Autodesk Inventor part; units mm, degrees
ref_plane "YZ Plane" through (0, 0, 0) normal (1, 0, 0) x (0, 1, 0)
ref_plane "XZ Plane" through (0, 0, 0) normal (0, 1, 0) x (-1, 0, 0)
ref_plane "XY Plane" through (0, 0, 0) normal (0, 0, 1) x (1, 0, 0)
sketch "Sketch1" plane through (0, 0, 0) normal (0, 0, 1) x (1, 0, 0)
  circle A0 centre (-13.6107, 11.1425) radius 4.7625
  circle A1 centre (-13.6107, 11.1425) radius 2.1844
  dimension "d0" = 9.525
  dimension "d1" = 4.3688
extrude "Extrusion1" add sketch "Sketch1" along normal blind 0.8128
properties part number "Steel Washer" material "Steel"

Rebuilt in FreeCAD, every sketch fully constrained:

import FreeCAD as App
import Part
import Sketcher
Q = App.Units.Quantity

doc = App.newDocument("Part")
body = doc.addObject("PartDesign::Body", "Body")

sketch1 = body.newObject("Sketcher::SketchObject", "Sketch")
sketch1.AttachmentSupport = (doc.getObject("XY_Plane"), [""])
sketch1.MapMode = "FlatFace"
sketch1.addGeometry([
    Part.Circle(App.Vector(-13.6107, 11.1425, 0), App.Vector(0, 0, 1), 4.7625),
    Part.Circle(App.Vector(-13.6107, 11.1425, 0), App.Vector(0, 0, 1), 2.1844),
], False)
sketch1.addConstraint([
    Sketcher.Constraint("Coincident", 1, 3, 0, 3),
    Sketcher.Constraint("Diameter", 0, Q("0.375 in")),
    Sketcher.Constraint("Diameter", 1, Q("0.172 in")),
    Sketcher.Constraint("DistanceX", 0, 3, -1, 1, 13.6107),
    Sketcher.Constraint("DistanceY", -1, 1, 0, 3, 11.1425),
])
pad1 = body.newObject("PartDesign::Pad", "Pad")
pad1.Profile = sketch1
pad1.Length = Q("0.032 in")

doc.recompute()
